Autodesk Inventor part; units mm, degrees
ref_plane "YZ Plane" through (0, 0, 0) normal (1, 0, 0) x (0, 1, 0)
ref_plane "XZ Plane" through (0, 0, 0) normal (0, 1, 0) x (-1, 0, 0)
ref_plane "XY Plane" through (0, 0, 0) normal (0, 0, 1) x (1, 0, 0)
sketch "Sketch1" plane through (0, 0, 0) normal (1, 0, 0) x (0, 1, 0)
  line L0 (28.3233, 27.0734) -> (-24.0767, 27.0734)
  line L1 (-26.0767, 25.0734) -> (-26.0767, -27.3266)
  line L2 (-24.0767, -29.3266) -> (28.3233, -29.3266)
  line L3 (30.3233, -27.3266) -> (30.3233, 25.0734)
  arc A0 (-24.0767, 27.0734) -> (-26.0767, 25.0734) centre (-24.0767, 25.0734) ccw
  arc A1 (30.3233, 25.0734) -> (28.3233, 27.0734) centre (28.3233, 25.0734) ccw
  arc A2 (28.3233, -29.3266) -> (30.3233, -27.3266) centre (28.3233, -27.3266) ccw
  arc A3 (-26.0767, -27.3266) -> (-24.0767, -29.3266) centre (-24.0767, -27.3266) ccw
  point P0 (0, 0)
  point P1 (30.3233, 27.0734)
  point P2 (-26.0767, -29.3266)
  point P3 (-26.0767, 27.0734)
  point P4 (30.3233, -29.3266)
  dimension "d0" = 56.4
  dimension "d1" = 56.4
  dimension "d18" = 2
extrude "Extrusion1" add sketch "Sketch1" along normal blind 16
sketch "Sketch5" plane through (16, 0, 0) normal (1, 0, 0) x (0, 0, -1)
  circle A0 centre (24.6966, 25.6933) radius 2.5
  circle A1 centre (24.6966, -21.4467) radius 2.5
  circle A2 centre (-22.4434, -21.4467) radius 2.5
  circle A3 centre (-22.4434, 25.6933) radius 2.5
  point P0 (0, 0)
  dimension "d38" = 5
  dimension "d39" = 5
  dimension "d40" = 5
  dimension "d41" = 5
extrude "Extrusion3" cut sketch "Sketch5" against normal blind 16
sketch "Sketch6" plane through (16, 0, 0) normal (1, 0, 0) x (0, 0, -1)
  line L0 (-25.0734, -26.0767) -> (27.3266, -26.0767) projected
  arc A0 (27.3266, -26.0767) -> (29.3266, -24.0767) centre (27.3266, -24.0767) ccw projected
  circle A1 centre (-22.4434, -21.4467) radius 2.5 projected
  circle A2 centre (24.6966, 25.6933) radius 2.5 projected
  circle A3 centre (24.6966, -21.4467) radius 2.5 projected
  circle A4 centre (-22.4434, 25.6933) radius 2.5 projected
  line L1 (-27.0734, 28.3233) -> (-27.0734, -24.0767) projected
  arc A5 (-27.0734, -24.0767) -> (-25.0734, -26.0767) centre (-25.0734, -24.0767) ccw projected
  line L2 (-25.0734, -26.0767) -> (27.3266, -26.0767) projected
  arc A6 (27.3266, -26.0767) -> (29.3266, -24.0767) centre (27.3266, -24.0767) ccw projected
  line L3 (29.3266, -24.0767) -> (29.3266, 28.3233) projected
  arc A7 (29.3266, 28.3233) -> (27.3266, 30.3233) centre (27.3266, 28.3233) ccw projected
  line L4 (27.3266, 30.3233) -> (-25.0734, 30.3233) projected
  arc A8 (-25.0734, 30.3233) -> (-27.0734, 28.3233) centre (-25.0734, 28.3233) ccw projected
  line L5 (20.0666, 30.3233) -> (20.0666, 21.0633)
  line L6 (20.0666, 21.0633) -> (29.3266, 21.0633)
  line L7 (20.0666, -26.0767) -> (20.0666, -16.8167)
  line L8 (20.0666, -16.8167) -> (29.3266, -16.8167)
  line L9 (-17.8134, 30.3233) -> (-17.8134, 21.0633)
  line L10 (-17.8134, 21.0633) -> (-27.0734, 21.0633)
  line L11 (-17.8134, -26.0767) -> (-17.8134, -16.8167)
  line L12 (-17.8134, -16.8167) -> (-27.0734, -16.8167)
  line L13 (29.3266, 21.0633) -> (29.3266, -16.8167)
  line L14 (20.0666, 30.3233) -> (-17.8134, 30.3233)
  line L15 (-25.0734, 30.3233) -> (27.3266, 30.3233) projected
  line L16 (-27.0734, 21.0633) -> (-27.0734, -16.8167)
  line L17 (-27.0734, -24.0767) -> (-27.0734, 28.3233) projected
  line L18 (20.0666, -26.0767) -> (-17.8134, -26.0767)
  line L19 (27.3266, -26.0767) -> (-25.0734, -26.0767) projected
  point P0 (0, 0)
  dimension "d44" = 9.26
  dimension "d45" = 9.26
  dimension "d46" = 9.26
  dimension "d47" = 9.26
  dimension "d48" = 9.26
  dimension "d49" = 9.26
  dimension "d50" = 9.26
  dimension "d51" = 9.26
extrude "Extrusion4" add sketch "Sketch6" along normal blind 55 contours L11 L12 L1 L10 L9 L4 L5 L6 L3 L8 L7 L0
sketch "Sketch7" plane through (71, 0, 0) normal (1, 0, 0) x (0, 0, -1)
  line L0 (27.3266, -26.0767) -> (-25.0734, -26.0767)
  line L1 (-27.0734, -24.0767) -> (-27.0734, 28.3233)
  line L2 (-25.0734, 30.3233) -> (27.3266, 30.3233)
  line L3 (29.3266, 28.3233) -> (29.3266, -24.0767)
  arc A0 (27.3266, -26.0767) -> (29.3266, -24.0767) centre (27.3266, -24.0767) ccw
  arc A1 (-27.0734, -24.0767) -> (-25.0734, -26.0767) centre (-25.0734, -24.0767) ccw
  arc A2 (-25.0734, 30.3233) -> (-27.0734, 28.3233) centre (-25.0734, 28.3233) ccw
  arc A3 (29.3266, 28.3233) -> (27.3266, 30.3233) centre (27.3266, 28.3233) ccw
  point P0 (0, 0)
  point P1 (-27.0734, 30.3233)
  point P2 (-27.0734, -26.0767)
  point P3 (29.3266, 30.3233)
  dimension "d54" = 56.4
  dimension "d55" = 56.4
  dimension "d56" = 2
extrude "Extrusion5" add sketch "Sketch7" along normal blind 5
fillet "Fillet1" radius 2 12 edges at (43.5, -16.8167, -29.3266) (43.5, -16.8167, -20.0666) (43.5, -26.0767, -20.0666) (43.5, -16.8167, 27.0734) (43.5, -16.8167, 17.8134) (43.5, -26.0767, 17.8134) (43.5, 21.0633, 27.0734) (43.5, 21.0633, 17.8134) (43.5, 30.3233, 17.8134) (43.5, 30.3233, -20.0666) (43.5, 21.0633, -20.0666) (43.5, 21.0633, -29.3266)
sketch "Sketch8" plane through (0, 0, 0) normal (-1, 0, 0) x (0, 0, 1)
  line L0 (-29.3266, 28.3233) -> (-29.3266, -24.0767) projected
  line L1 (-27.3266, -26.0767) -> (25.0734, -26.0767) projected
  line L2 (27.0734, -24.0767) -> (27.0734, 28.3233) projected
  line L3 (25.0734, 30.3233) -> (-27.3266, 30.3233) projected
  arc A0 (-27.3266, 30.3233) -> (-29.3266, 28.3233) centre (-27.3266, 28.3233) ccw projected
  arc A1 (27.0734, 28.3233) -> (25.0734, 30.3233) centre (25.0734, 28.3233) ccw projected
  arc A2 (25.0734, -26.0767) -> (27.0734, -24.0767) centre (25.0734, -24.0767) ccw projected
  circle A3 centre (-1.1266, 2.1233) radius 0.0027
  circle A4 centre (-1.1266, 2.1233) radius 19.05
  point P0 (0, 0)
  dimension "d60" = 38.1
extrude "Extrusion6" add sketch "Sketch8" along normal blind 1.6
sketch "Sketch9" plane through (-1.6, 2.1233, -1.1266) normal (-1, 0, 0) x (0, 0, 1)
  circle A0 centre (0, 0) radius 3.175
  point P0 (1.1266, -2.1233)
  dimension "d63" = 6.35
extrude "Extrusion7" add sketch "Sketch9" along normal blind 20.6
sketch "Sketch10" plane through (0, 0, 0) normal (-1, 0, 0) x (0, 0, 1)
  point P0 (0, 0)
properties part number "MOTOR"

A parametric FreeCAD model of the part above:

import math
import FreeCAD as App
import Part
import Sketcher

V = App.Vector


def edges_at(feature, points):
    """Names of the edges that pass closest to the given points."""
    edges = feature.Shape.Edges
    near = lambda p: min(range(len(edges)), key=lambda i: edges[i].distToShape(Part.Vertex(*p))[0])
    return sorted({f"Edge{near(p) + 1}" for p in points})

doc = App.newDocument("Part")
body = doc.addObject("PartDesign::Body", "Body")

# Sketch on YZ plane
sketch1 = body.newObject("Sketcher::SketchObject", "Sketch")
sketch1.AttachmentSupport = (doc.getObject("YZ_Plane"), [""])
sketch1.MapMode = "FlatFace"
sketch1.addGeometry([
    Part.ArcOfCircle(Part.Circle(V(28.3, 25.1, 0), V(0, 0, 1), 2), math.radians(0), math.radians(90)),  # 0
    Part.LineSegment(V(28.3, 27.1, 0), V(-24.1, 27.1, 0)),  # 1
    Part.ArcOfCircle(Part.Circle(V(-24.1, 25.1, 0), V(0, 0, 1), 2), math.radians(90), math.radians(180)),  # 2
    Part.LineSegment(V(-26.1, 25.1, 0), V(-26.1, -27.3, 0)),  # 3
    Part.ArcOfCircle(Part.Circle(V(-24.1, -27.3, 0), V(0, 0, 1), 2), math.radians(180), math.radians(270)),  # 4
    Part.LineSegment(V(-24.1, -29.3, 0), V(28.3, -29.3, 0)),  # 5
    Part.ArcOfCircle(Part.Circle(V(28.3, -27.3, 0), V(0, 0, 1), 2), math.radians(-90), math.radians(0)),  # 6
    Part.LineSegment(V(30.3, -27.3, 0), V(30.3, 25.1, 0)),  # 7
], False)
sketch1.addConstraint([
    Sketcher.Constraint("Tangent", 0, 2, 1, 1),
    Sketcher.Constraint("Tangent", 1, 2, 2, 1),
    Sketcher.Constraint("Tangent", 2, 2, 3, 1),
    Sketcher.Constraint("Tangent", 3, 2, 4, 1),
    Sketcher.Constraint("Tangent", 4, 2, 5, 1),
    Sketcher.Constraint("Tangent", 5, 2, 6, 1),
    Sketcher.Constraint("Tangent", 6, 2, 7, 1),
    Sketcher.Constraint("Tangent", 7, 2, 0, 1),
    Sketcher.Constraint("Horizontal", 1),
    Sketcher.Constraint("Vertical", 3),
    Sketcher.Constraint("Horizontal", 5),
    Sketcher.Constraint("Vertical", 7),
    Sketcher.Constraint("Equal", 0, 2),
    Sketcher.Constraint("Equal", 2, 4),
    Sketcher.Constraint("Equal", 4, 6),
    Sketcher.Constraint("Equal", 5, 3),
    Sketcher.Constraint("Radius", 0, 2.0),
    Sketcher.Constraint("DistanceX", 1, 2, 1, 1, 52.4),
    Sketcher.Constraint("DistanceX", -1, 1, 0, 3, 28.3233),
    Sketcher.Constraint("DistanceY", -1, 1, 0, 3, 25.0734),
])
pad1 = body.newObject("PartDesign::Pad", "Pad")
pad1.Profile = sketch1
pad1.Length = 16

# Sketch on YZ plane
sketch2 = body.newObject("Sketcher::SketchObject", "Sketch001")
sketch2.AttachmentSupport = (doc.getObject("YZ_Plane"), [""])
sketch2.MapMode = "FlatFace"
sketch2.AttachmentOffset = App.Placement(V(0, 0, 16), App.Rotation())
sketch2.addGeometry([
    Part.Circle(V(25.7, -24.7, 0), V(0, 0, 1), 2.5),
    Part.Circle(V(-21.4, -24.7, 0), V(0, 0, 1), 2.5),
    Part.Circle(V(-21.4, 22.4, 0), V(0, 0, 1), 2.5),
    Part.Circle(V(25.7, 22.4, 0), V(0, 0, 1), 2.5),
], False)
sketch2.addConstraint([
    Sketcher.Constraint("Equal", 0, 1),
    Sketcher.Constraint("Equal", 1, 2),
    Sketcher.Constraint("Equal", 2, 3),
    Sketcher.Constraint("Horizontal", 0, 3, 1, 3),
    Sketcher.Constraint("Horizontal", 2, 3, 3, 3),
    Sketcher.Constraint("Vertical", 1, 3, 2, 3),
    Sketcher.Constraint("Vertical", 0, 3, 3, 3),
    Sketcher.Constraint("Diameter", 0, 5.0),
    Sketcher.Constraint("DistanceX", 1, 3, 0, 3, 47.14),
    Sketcher.Constraint("DistanceY", 1, 3, 2, 3, 47.14),
    Sketcher.Constraint("DistanceX", -1, 1, 0, 3, 25.6933),
    Sketcher.Constraint("DistanceY", 0, 3, -1, 1, 24.6966),
])
pocket1 = body.newObject("PartDesign::Pocket", "Pocket")
pocket1.Profile = sketch2
pocket1.Length = 16

# Sketch on YZ plane
sketch3 = body.newObject("Sketcher::SketchObject", "Sketch002")
sketch3.AttachmentSupport = (doc.getObject("YZ_Plane"), [""])
sketch3.MapMode = "FlatFace"
sketch3.AttachmentOffset = App.Placement(V(0, 0, 16), App.Rotation())
sketch3.addGeometry([
    Part.LineSegment(V(-17, 18, 0), V(-26, 18, 0)),  # 0
    Part.LineSegment(V(-26, 18, 0), V(-26, -20, 0)),  # 1
    Part.LineSegment(V(-26, -20, 0), V(-17, -20, 0)),  # 2
    Part.LineSegment(V(-17, -20, 0), V(-17, -29, 0)),  # 3
    Part.LineSegment(V(-17, -29, 0), V(21, -29, 0)),  # 4
    Part.LineSegment(V(21, -29, 0), V(21, -20, 0)),  # 5
    Part.LineSegment(V(21, -20, 0), V(30, -20, 0)),  # 6
    Part.LineSegment(V(30, -20, 0), V(30, 18, 0)),  # 7
    Part.LineSegment(V(30, 18, 0), V(21, 18, 0)),  # 8
    Part.LineSegment(V(21, 18, 0), V(21, 27, 0)),  # 9
    Part.LineSegment(V(21, 27, 0), V(-17, 27, 0)),  # 10
    Part.LineSegment(V(-17, 27, 0), V(-17, 18, 0)),  # 11
], False)
sketch3.addConstraint([
    Sketcher.Constraint("Coincident", 0, 2, 1, 1),
    Sketcher.Constraint("Coincident", 1, 2, 2, 1),
    Sketcher.Constraint("Coincident", 2, 2, 3, 1),
    Sketcher.Constraint("Coincident", 3, 2, 4, 1),
    Sketcher.Constraint("Coincident", 4, 2, 5, 1),
    Sketcher.Constraint("Coincident", 5, 2, 6, 1),
    Sketcher.Constraint("Coincident", 6, 2, 7, 1),
    Sketcher.Constraint("Coincident", 7, 2, 8, 1),
    Sketcher.Constraint("Coincident", 8, 2, 9, 1),
    Sketcher.Constraint("Coincident", 9, 2, 10, 1),
    Sketcher.Constraint("Coincident", 10, 2, 11, 1),
    Sketcher.Constraint("Coincident", 11, 2, 0, 1),
    Sketcher.Constraint("Horizontal", 0),
    Sketcher.Constraint("Vertical", 1),
    Sketcher.Constraint("Horizontal", 2),
    Sketcher.Constraint("Vertical", 3),
    Sketcher.Constraint("Horizontal", 4),
    Sketcher.Constraint("Vertical", 5),
    Sketcher.Constraint("Horizontal", 6),
    Sketcher.Constraint("Vertical", 7),
    Sketcher.Constraint("Horizontal", 8),
    Sketcher.Constraint("Vertical", 9),
    Sketcher.Constraint("Horizontal", 10),
    Sketcher.Constraint("Vertical", 11),
    Sketcher.Constraint("Horizontal", 2, 2, 5, 2),
    Sketcher.Constraint("Horizontal", 0, 2, 7, 2),
    Sketcher.Constraint("Vertical", 5, 2, 8, 2),
    Sketcher.Constraint("Vertical", 3, 2, 10, 2),
    Sketcher.Constraint("Equal", 2, 6),
    Sketcher.Constraint("Equal", 10, 1),
    Sketcher.Constraint("Equal", 8, 3),
    Sketcher.Constraint("Equal", 5, 9),
    Sketcher.Constraint("DistanceX", 0, 2, 0, 1, 9.26),
    Sketcher.Constraint("DistanceX", 4, 1, 4, 2, 37.88),
    Sketcher.Constraint("DistanceX", 0, 2, -1, 1, 26.0767),
    Sketcher.Constraint("DistanceY", -1, 1, 0, 2, 17.8134),
])
pad2 = body.newObject("PartDesign::Pad", "Pad001")
pad2.Profile = sketch3
pad2.Length = 55

# Sketch on YZ plane
sketch4 = body.newObject("Sketcher::SketchObject", "Sketch003")
sketch4.AttachmentSupport = (doc.getObject("YZ_Plane"), [""])
sketch4.MapMode = "FlatFace"
sketch4.AttachmentOffset = App.Placement(V(0, 0, 71), App.Rotation())
sketch4.addGeometry([
    Part.LineSegment(V(-26.1, 25.1, 0), V(-26.1, -27.3, 0)),  # 0
    Part.ArcOfCircle(Part.Circle(V(-24.1, -27.3, 0), V(0, 0, 1), 2), math.radians(180), math.radians(270)),  # 1
    Part.LineSegment(V(-24.1, -29.3, 0), V(28.3, -29.3, 0)),  # 2
    Part.ArcOfCircle(Part.Circle(V(28.3, -27.3, 0), V(0, 0, 1), 2), math.radians(-90), math.radians(0)),  # 3
    Part.LineSegment(V(30.3, -27.3, 0), V(30.3, 25.1, 0)),  # 4
    Part.ArcOfCircle(Part.Circle(V(28.3, 25.1, 0), V(0, 0, 1), 2), math.radians(0), math.radians(90)),  # 5
    Part.LineSegment(V(28.3, 27.1, 0), V(-24.1, 27.1, 0)),  # 6
    Part.ArcOfCircle(Part.Circle(V(-24.1, 25.1, 0), V(0, 0, 1), 2), math.radians(90), math.radians(180)),  # 7
], False)
sketch4.addConstraint([
    Sketcher.Constraint("Tangent", 0, 2, 1, 1),
    Sketcher.Constraint("Tangent", 1, 2, 2, 1),
    Sketcher.Constraint("Tangent", 2, 2, 3, 1),
    Sketcher.Constraint("Tangent", 3, 2, 4, 1),
    Sketcher.Constraint("Tangent", 4, 2, 5, 1),
    Sketcher.Constraint("Tangent", 5, 2, 6, 1),
    Sketcher.Constraint("Tangent", 6, 2, 7, 1),
    Sketcher.Constraint("Tangent", 7, 2, 0, 1),
    Sketcher.Constraint("Vertical", 0),
    Sketcher.Constraint("Horizontal", 2),
    Sketcher.Constraint("Vertical", 4),
    Sketcher.Constraint("Horizontal", 6),
    Sketcher.Constraint("Equal", 1, 3),
    Sketcher.Constraint("Equal", 3, 5),
    Sketcher.Constraint("Equal", 5, 7),
    Sketcher.Constraint("Equal", 6, 0),
    Sketcher.Constraint("Radius", 1, 2.0),
    Sketcher.Constraint("DistanceX", 2, 1, 2, 2, 52.4),
    Sketcher.Constraint("DistanceX", 1, 3, -1, 1, 24.0767),
    Sketcher.Constraint("DistanceY", 1, 3, -1, 1, 27.3266),
])
pad3 = body.newObject("PartDesign::Pad", "Pad002")
pad3.Profile = sketch4
pad3.Length = 5
doc.recompute()

fillet = body.newObject("PartDesign::Fillet", "Fillet")
fillet.Base = (pad3, edges_at(pad3, [
    (43.5, -16.817, -29.327),
    (43.5, -16.817, -20.067),
    (43.5, -26.077, -20.067),
    (43.5, -16.817, 27.073),
    (43.5, -16.817, 17.813),
    (43.5, -26.077, 17.813),
    (43.5, 21.063, 27.073),
    (43.5, 21.063, 17.813),
    (43.5, 30.323, 17.813),
    (43.5, 30.323, -20.067),
    (43.5, 21.063, -20.067),
    (43.5, 21.063, -29.327),
]))
fillet.Radius = 2

# Sketch on YZ plane
sketch5 = body.newObject("Sketcher::SketchObject", "Sketch004")
sketch5.AttachmentSupport = (doc.getObject("YZ_Plane"), [""])
sketch5.MapMode = "FlatFace"
sketch5.addGeometry([
    Part.Circle(V(2.1233, -1.1266, 0), V(0, 0, 1), 19.05),
    Part.Circle(V(2.1233, -1.1266, 0), V(0, 0, 1), 0.0027),
], False)
sketch5.addConstraint([
    Sketcher.Constraint("Coincident", 1, 3, 0, 3),
    Sketcher.Constraint("Diameter", 0, 38.1),
    Sketcher.Constraint("Diameter", 1, 0.0054),
    Sketcher.Constraint("DistanceX", -1, 1, 0, 3, 2.1233),
    Sketcher.Constraint("DistanceY", 0, 3, -1, 1, 1.1266),
])
pad4 = body.newObject("PartDesign::Pad", "Pad003")
pad4.Profile = sketch5
pad4.Length = 1.6
pad4.Reversed = True

# Sketch on YZ plane
sketch6 = body.newObject("Sketcher::SketchObject", "Sketch005")
sketch6.AttachmentSupport = (doc.getObject("YZ_Plane"), [""])
sketch6.MapMode = "FlatFace"
sketch6.AttachmentOffset = App.Placement(V(0, 0, -1.6), App.Rotation())
sketch6.addGeometry(Part.Circle(V(2.1, -1.1, 0), V(0, 0, 1), 3.2), False)
sketch6.addConstraint([
    Sketcher.Constraint("Diameter", 0, 6.35),
    Sketcher.Constraint("DistanceX", -1, 1, 0, 3, 2.1233),
    Sketcher.Constraint("DistanceY", 0, 3, -1, 1, 1.1266),
])
pad5 = body.newObject("PartDesign::Pad", "Pad004")
pad5.Profile = sketch6
pad5.Length = 20.6
pad5.Reversed = True

doc.recompute()
